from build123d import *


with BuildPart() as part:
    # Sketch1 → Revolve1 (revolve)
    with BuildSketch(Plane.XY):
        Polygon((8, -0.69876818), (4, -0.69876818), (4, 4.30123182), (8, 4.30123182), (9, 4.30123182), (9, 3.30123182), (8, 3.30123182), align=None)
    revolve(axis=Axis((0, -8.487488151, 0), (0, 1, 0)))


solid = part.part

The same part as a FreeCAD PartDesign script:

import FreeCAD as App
import Part
import Sketcher

V = App.Vector

doc = App.newDocument("Part")
body = doc.addObject("PartDesign::Body", "Body")

sketch1 = body.newObject("Sketcher::SketchObject", "Sketch")
sketch1.AttachmentSupport = (doc.getObject("XY_Plane"), [""])
sketch1.MapMode = "FlatFace"
sketch1.addGeometry([
    Part.LineSegment(V(4, -0.7, 0), V(8, -0.7, 0)),
    Part.LineSegment(V(8, -0.7, 0), V(8, 3.3, 0)),
    Part.LineSegment(V(8, 3.3, 0), V(9, 3.3, 0)),
    Part.LineSegment(V(9, 3.3, 0), V(9, 4.3, 0)),
    Part.LineSegment(V(9, 4.3, 0), V(4, 4.3, 0)),
    Part.LineSegment(V(4, 4.3, 0), V(4, -0.7, 0)),
], False)
sketch1.addConstraint([
    Sketcher.Constraint("Coincident", 0, 2, 1, 1),
    Sketcher.Constraint("Coincident", 1, 2, 2, 1),
    Sketcher.Constraint("Coincident", 2, 2, 3, 1),
    Sketcher.Constraint("Coincident", 3, 2, 4, 1),
    Sketcher.Constraint("Coincident", 4, 2, 5, 1),
    Sketcher.Constraint("Coincident", 5, 2, 0, 1),
    Sketcher.Constraint("Horizontal", 0),
    Sketcher.Constraint("Vertical", 1),
    Sketcher.Constraint("Horizontal", 2),
    Sketcher.Constraint("Vertical", 3),
    Sketcher.Constraint("Horizontal", 4),
    Sketcher.Constraint("Vertical", 5),
    Sketcher.Constraint("Equal", 0, 1),
    Sketcher.Constraint("Equal", 2, 3),
    Sketcher.Constraint("DistanceX", 0, 1, 0, 2, 4.0),
    Sketcher.Constraint("DistanceX", 2, 1, 2, 2, 1.0),
    Sketcher.Constraint("DistanceX", -1, 1, 0, 2, 8.0),
    Sketcher.Constraint("DistanceY", 0, 2, -1, 1, 0.698768),
])
revolution = body.newObject("PartDesign::Revolution", "Revolution")
revolution.Profile = sketch1
revolution.ReferenceAxis = (sketch1, ["V_Axis"])
revolution.Angle = 360

doc.recompute()
